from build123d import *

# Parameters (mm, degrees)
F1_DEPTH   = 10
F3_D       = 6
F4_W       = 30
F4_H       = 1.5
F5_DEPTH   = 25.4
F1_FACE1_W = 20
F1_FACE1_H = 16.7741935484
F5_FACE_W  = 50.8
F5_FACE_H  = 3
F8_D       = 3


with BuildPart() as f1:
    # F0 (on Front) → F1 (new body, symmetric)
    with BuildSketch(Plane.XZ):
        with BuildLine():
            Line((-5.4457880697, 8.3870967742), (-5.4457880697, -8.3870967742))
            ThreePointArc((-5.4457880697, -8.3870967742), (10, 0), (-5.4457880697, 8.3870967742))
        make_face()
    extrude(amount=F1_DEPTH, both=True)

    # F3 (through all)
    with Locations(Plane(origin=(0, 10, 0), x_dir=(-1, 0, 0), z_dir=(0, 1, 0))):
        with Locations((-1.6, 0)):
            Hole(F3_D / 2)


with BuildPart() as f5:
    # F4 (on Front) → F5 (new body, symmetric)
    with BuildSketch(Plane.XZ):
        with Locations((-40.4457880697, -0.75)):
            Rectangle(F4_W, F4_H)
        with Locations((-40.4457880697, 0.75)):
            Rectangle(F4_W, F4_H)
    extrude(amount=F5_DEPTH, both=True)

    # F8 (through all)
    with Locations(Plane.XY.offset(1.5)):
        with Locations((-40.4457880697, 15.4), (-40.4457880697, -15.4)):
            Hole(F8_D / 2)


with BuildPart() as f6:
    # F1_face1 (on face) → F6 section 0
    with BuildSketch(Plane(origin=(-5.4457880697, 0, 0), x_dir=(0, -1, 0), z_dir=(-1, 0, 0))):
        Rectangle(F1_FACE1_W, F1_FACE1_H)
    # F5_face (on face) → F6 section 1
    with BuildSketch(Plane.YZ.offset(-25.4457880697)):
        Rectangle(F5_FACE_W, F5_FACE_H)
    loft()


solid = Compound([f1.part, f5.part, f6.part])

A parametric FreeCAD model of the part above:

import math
import FreeCAD as App
import Part
import Sketcher
from FreeCAD import Vector
Q = App.Units.Quantity

doc = App.newDocument("Part")
params = doc.addObject("Spreadsheet::Sheet", "Params")
for row, (alias, value) in enumerate([
    ("sketch1_radius", "10 mm"),
    ("pad1_length", "20 mm"),
    ("sketch2_diameter", "6 mm"),
    ("hole_diameter", "6 mm"),
    ("sketch3_width", "30 mm"),
    ("sketch3_height", "3 mm"),
    ("pad2_length", "50.8 mm"),
    ("sketch4_diameter", "3 mm"),
    ("hole2_diameter", "3 mm"),
    ("sketch5_width", "20 mm"),
    ("sketch6_height", "3 mm"),
    ("sketch6_width", "50.8 mm"),
], start=1):
    params.set(f"A{row}", alias)
    params.set(f"B{row}", "=" + value)
    params.setAlias(f"B{row}", alias)

body = doc.addObject("PartDesign::Body", "Body")

# Sketch on XZ plane
sketch1 = body.newObject("Sketcher::SketchObject", "Sketch")
sketch1.AttachmentSupport = (doc.getObject("XZ_Plane"), [""])
sketch1.MapMode = "FlatFace"
sketch1.addGeometry(Part.LineSegment(Vector(-5, 8, 0), Vector(-5, -8, 0)), False)
sketch1.addGeometry(Part.ArcOfCircle(Part.Circle(Vector(0, 0, 0), Vector(0, 0, 1), 10), math.radians(-123), math.radians(123)), False)
sketch1.addConstraint(Sketcher.Constraint("Coincident", 0, 1, 1, 2))
sketch1.addConstraint(Sketcher.Constraint("Coincident", 1, 1, 0, 2))
sketch1.addConstraint(Sketcher.Constraint("Vertical", 0))
sketch1.addConstraint(Sketcher.Constraint("Coincident", 1, 3, -1, 1))
sketch1.addConstraint(Sketcher.Constraint("Radius", 1, Q("10 mm")))
sketch1.addConstraint(Sketcher.Constraint("DistanceY", 0, 2, 0, 1, Q("16.774194 mm")))
sketch1.setExpression("Constraints[4]", "Params.sketch1_radius")
pad1 = body.newObject("PartDesign::Pad", "Pad")
pad1.Profile = sketch1
pad1.setExpression("Length", "Params.pad1_length")
pad1.Midplane = True

# Sketch on XZ plane
sketch2 = body.newObject("Sketcher::SketchObject", "Sketch001")
sketch2.AttachmentSupport = (doc.getObject("XZ_Plane"), [""])
sketch2.MapMode = "FlatFace"
sketch2.AttachmentOffset = App.Placement(Vector(0, 0, -10), App.Rotation())
sketch2.addGeometry(Part.Circle(Vector(1.6, 0, 0), Vector(0, 0, 1), 3), False)
sketch2.addConstraint(Sketcher.Constraint("PointOnObject", 0, 3, -1))
sketch2.addConstraint(Sketcher.Constraint("Diameter", 0, Q("6 mm")))
sketch2.addConstraint(Sketcher.Constraint("DistanceX", -1, 1, 0, 3, Q("1.6 mm")))
sketch2.setExpression("Constraints[1]", "Params.sketch2_diameter")
doc.recompute()
hole = body.newObject("PartDesign::Hole", "Hole")
hole.Profile = sketch2
hole.ThreadType = "None"
hole.setExpression("Diameter", "Params.hole_diameter")
hole.DepthType = "ThroughAll"
hole.Reversed = True
body2 = doc.addObject("PartDesign::Body", "Body001")

# Sketch on XZ plane
sketch3 = body2.newObject("Sketcher::SketchObject", "Sketch002")
sketch3.AttachmentSupport = (doc.getObject("XZ_Plane001"), [""])
sketch3.MapMode = "FlatFace"
sketch3.addGeometry(Part.LineSegment(Vector(-55.4, -1.5, 0), Vector(-25.4, -1.5, 0)), False)
sketch3.addGeometry(Part.LineSegment(Vector(-25.4, -1.5, 0), Vector(-25.4, 1.5, 0)), False)
sketch3.addGeometry(Part.LineSegment(Vector(-25.4, 1.5, 0), Vector(-55.4, 1.5, 0)), False)
sketch3.addGeometry(Part.LineSegment(Vector(-55.4, 1.5, 0), Vector(-55.4, -1.5, 0)), False)
sketch3.addConstraint(Sketcher.Constraint("Coincident", 0, 2, 1, 1))
sketch3.addConstraint(Sketcher.Constraint("Coincident", 1, 2, 2, 1))
sketch3.addConstraint(Sketcher.Constraint("Coincident", 2, 2, 3, 1))
sketch3.addConstraint(Sketcher.Constraint("Coincident", 3, 2, 0, 1))
sketch3.addConstraint(Sketcher.Constraint("Horizontal", 0))
sketch3.addConstraint(Sketcher.Constraint("Vertical", 1))
sketch3.addConstraint(Sketcher.Constraint("Horizontal", 2))
sketch3.addConstraint(Sketcher.Constraint("Vertical", 3))
sketch3.addConstraint(Sketcher.Constraint("DistanceX", 0, 1, 0, 2, Q("30 mm")))
sketch3.addConstraint(Sketcher.Constraint("DistanceY", 1, 1, 1, 2, Q("3 mm")))
sketch3.addConstraint(Sketcher.Constraint("DistanceY", 0, 2, -1, 1, Q("1.5 mm")))
sketch3.addConstraint(Sketcher.Constraint("DistanceX", 0, 2, -1, 1, Q("25.445788 mm")))
sketch3.setExpression("Constraints[8]", "Params.sketch3_width")
sketch3.setExpression("Constraints[9]", "Params.sketch3_height")
pad2 = body2.newObject("PartDesign::Pad", "Pad001")
pad2.Profile = sketch3
pad2.setExpression("Length", "Params.pad2_length")
pad2.Midplane = True

# Sketch on XY plane
sketch4 = body2.newObject("Sketcher::SketchObject", "Sketch003")
sketch4.AttachmentSupport = (doc.getObject("XY_Plane001"), [""])
sketch4.MapMode = "FlatFace"
sketch4.AttachmentOffset = App.Placement(Vector(0, 0, 1.5), App.Rotation())
sketch4.addGeometry(Part.Circle(Vector(-40.4, 15.4, 0), Vector(0, 0, 1), 1.5), False)
sketch4.addGeometry(Part.Circle(Vector(-40.4, -15.4, 0), Vector(0, 0, 1), 1.5), False)
sketch4.addConstraint(Sketcher.Constraint("Equal", 0, 1))
sketch4.addConstraint(Sketcher.Constraint("Symmetric", 0, 3, 1, 3, -1))
sketch4.addConstraint(Sketcher.Constraint("Diameter", 0, Q("3 mm")))
sketch4.addConstraint(Sketcher.Constraint("DistanceY", -1, 1, 0, 3, Q("15.4 mm")))
sketch4.addConstraint(Sketcher.Constraint("DistanceX", 0, 3, -1, 1, Q("40.445788 mm")))
sketch4.setExpression("Constraints[2]", "Params.sketch4_diameter")
doc.recompute()
hole2 = body2.newObject("PartDesign::Hole", "Hole001")
hole2.Profile = sketch4
hole2.ThreadType = "None"
hole2.setExpression("Diameter", "Params.hole2_diameter")
hole2.DepthType = "ThroughAll"
body3 = doc.addObject("PartDesign::Body", "Body002")

# Sketch on YZ plane
sketch5 = body3.newObject("Sketcher::SketchObject", "Sketch004")
sketch5.AttachmentSupport = (doc.getObject("YZ_Plane002"), [""])
sketch5.MapMode = "FlatFace"
sketch5.AttachmentOffset = App.Placement(Vector(0, 0, -5.445788), App.Rotation())
sketch5.addGeometry(Part.LineSegment(Vector(10, 8, 0), Vector(10, -8, 0)), False)
sketch5.addGeometry(Part.LineSegment(Vector(10, -8, 0), Vector(-10, -8, 0)), False)
sketch5.addGeometry(Part.LineSegment(Vector(-10, -8, 0), Vector(-10, 8, 0)), False)
sketch5.addGeometry(Part.LineSegment(Vector(-10, 8, 0), Vector(10, 8, 0)), False)
sketch5.addConstraint(Sketcher.Constraint("Coincident", 0, 2, 1, 1))
sketch5.addConstraint(Sketcher.Constraint("Coincident", 1, 2, 2, 1))
sketch5.addConstraint(Sketcher.Constraint("Coincident", 2, 2, 3, 1))
sketch5.addConstraint(Sketcher.Constraint("Coincident", 3, 2, 0, 1))
sketch5.addConstraint(Sketcher.Constraint("Vertical", 0))
sketch5.addConstraint(Sketcher.Constraint("Horizontal", 1))
sketch5.addConstraint(Sketcher.Constraint("Vertical", 2))
sketch5.addConstraint(Sketcher.Constraint("Horizontal", 3))
sketch5.addConstraint(Sketcher.Constraint("Symmetric", 0, 2, 2, 2, -1, 1))
sketch5.addConstraint(Sketcher.Constraint("DistanceX", 1, 2, 1, 1, Q("20 mm")))
sketch5.addConstraint(Sketcher.Constraint("DistanceY", 0, 2, 0, 1, Q("16.774194 mm")))
sketch5.setExpression("Constraints[9]", "Params.sketch5_width")

# Sketch on YZ plane
sketch6 = body3.newObject("Sketcher::SketchObject", "Sketch005")
sketch6.AttachmentSupport = (doc.getObject("YZ_Plane002"), [""])
sketch6.MapMode = "FlatFace"
sketch6.AttachmentOffset = App.Placement(Vector(0, 0, -25.445788), App.Rotation())
sketch6.addGeometry(Part.LineSegment(Vector(-25.4, 1.5, 0), Vector(-25.4, -1.5, 0)), False)
sketch6.addGeometry(Part.LineSegment(Vector(-25.4, -1.5, 0), Vector(25.4, -1.5, 0)), False)
sketch6.addGeometry(Part.LineSegment(Vector(25.4, -1.5, 0), Vector(25.4, 1.5, 0)), False)
sketch6.addGeometry(Part.LineSegment(Vector(25.4, 1.5, 0), Vector(-25.4, 1.5, 0)), False)
sketch6.addConstraint(Sketcher.Constraint("Coincident", 0, 2, 1, 1))
sketch6.addConstraint(Sketcher.Constraint("Coincident", 1, 2, 2, 1))
sketch6.addConstraint(Sketcher.Constraint("Coincident", 2, 2, 3, 1))
sketch6.addConstraint(Sketcher.Constraint("Coincident", 3, 2, 0, 1))
sketch6.addConstraint(Sketcher.Constraint("Vertical", 0))
sketch6.addConstraint(Sketcher.Constraint("Horizontal", 1))
sketch6.addConstraint(Sketcher.Constraint("Vertical", 2))
sketch6.addConstraint(Sketcher.Constraint("Horizontal", 3))
sketch6.addConstraint(Sketcher.Constraint("Symmetric", 0, 2, 2, 2, -1, 1))
sketch6.addConstraint(Sketcher.Constraint("DistanceY", 0, 2, 0, 1, Q("3 mm")))
sketch6.addConstraint(Sketcher.Constraint("DistanceX", 1, 1, 1, 2, Q("50.8 mm")))
sketch6.setExpression("Constraints[9]", "Params.sketch6_height")
sketch6.setExpression("Constraints[10]", "Params.sketch6_width")

additiveloft = body3.newObject("PartDesign::AdditiveLoft", "AdditiveLoft")
additiveloft.Profile = sketch5
additiveloft.Sections = [sketch6]

doc.recompute()
